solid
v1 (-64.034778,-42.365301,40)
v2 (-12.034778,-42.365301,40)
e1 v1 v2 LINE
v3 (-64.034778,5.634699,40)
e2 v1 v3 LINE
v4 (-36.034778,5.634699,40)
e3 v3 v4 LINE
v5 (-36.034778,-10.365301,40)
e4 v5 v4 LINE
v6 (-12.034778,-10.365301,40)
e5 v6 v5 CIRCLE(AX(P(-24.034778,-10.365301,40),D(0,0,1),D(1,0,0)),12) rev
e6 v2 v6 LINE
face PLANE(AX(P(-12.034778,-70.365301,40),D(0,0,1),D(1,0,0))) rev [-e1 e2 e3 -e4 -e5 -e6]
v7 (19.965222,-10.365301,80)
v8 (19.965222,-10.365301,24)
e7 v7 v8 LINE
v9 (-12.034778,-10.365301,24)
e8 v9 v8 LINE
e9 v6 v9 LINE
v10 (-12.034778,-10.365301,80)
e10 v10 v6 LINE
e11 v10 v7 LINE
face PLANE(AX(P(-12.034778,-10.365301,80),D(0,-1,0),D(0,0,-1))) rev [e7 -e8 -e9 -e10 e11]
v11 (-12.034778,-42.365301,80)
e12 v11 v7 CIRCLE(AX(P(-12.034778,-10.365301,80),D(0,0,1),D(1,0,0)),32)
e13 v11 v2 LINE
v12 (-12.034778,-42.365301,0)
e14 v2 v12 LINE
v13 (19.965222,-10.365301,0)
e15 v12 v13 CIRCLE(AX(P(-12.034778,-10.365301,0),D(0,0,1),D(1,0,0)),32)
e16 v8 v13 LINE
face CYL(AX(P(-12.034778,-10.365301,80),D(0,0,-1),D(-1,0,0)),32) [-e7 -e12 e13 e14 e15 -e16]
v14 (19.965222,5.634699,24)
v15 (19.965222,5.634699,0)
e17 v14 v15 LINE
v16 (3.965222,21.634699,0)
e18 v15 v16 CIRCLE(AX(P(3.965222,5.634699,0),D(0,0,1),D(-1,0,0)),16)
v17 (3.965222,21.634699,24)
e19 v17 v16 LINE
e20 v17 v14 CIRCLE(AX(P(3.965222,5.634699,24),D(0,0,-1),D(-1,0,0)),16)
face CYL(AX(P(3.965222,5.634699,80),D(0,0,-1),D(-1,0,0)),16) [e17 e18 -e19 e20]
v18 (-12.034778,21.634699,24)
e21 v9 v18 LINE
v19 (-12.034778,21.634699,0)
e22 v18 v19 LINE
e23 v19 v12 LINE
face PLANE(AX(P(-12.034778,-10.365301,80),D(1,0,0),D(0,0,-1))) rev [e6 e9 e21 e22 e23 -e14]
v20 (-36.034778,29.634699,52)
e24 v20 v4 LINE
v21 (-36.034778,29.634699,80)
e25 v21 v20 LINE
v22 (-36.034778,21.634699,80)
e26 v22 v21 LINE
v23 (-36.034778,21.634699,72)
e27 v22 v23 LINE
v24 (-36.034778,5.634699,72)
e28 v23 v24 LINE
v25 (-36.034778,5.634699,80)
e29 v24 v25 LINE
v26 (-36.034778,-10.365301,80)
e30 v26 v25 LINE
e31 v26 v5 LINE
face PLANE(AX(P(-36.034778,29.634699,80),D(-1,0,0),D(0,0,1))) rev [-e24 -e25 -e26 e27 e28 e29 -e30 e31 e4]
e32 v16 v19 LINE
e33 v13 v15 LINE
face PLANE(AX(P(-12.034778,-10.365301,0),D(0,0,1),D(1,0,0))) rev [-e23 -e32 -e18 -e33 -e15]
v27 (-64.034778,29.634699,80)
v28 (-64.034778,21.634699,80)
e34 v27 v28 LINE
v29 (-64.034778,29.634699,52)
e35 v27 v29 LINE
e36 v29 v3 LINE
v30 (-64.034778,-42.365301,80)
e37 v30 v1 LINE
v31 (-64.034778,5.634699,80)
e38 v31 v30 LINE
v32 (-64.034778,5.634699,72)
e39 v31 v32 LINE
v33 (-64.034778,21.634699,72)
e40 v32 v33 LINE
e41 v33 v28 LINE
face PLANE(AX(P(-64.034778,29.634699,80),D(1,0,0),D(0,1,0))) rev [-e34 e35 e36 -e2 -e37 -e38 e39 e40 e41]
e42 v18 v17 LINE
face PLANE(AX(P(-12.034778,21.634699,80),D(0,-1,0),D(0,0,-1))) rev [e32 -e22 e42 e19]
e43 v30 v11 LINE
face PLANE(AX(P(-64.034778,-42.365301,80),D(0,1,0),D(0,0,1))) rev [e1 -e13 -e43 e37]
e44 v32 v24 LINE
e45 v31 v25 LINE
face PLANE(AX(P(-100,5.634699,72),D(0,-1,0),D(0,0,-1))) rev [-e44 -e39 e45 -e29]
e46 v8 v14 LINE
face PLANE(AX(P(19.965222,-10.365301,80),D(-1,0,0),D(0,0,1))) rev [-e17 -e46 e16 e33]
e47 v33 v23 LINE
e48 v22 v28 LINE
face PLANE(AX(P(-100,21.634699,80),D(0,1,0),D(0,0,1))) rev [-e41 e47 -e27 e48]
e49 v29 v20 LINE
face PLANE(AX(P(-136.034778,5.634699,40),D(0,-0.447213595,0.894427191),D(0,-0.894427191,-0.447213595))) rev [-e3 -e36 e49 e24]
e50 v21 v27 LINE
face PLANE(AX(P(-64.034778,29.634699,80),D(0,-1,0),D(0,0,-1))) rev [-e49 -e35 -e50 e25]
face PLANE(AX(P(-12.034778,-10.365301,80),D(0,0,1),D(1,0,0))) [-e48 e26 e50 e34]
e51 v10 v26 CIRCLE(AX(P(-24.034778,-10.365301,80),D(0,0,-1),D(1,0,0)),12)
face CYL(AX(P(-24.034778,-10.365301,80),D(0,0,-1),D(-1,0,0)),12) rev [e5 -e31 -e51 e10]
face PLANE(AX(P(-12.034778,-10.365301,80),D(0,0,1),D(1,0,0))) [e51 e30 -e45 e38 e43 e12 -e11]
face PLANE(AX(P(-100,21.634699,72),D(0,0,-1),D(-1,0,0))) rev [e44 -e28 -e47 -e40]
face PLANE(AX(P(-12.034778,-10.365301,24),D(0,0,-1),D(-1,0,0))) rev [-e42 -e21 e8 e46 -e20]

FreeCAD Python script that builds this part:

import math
import FreeCAD as App
import Part
import Sketcher

V = App.Vector
Q = App.Units.Quantity

doc = App.newDocument("Part")
params = doc.addObject("Spreadsheet::Sheet", "Params")
for row, (alias, value) in enumerate([
    ("sketch1_radius", "32 mm"),
    ("sketch1_radius2", "16 mm"),
    ("sketch1_radius3", "12 mm"),
    ("sketch1_width", "28 mm"),
    ("sketch1_height", "72 mm"),
    ("pad1_length", "80 mm"),
    ("sketch2_width", "40 mm"),
    ("sketch2_height", "56 mm"),
    ("pocket1_length", "32 mm"),
    ("sketch3_width", "52 mm"),
    ("sketch3_height", "40 mm"),
    ("pocket2_length", "100 mm"),
    ("sketch4_width", "24 mm"),
    ("sketch4_height", "12 mm"),
    ("pocket3_length", "100 mm"),
    ("sketch5_width", "16 mm"),
    ("sketch5_height", "8 mm"),
    ("pocket4_length", "100 mm"),
], start=1):
    params.set(f"A{row}", alias)
    params.set(f"B{row}", "=" + value)
    params.setAlias(f"B{row}", alias)

body = doc.addObject("PartDesign::Body", "Body")

# Sketch on XY plane
sketch1 = body.newObject("Sketcher::SketchObject", "Sketch")
sketch1.AttachmentSupport = (doc.getObject("XY_Plane"), [""])
sketch1.MapMode = "FlatFace"
sketch1.addGeometry([
    Part.LineSegment(V(-36, 30, 0), V(-64, 30, 0)),  # 0
    Part.LineSegment(V(-64, 30, 0), V(-64, -42, 0)),  # 1
    Part.LineSegment(V(-64, -42, 0), V(-12, -42, 0)),  # 2
    Part.ArcOfCircle(Part.Circle(V(-12, -10, 0), V(0, 0, 1), 32), math.radians(-90), math.radians(0)),  # 3
    Part.LineSegment(V(20, -10, 0), V(20, 6, 0)),  # 4
    Part.ArcOfCircle(Part.Circle(V(4, 6, 0), V(0, 0, 1), 16), math.radians(0), math.radians(90)),  # 5
    Part.LineSegment(V(4, 22, 0), V(-12, 22, 0)),  # 6
    Part.LineSegment(V(-12, 22, 0), V(-12, -10, 0)),  # 7
    Part.ArcOfCircle(Part.Circle(V(-24, -10, 0), V(0, 0, 1), 12), math.radians(180), math.radians(360)),  # 8
    Part.LineSegment(V(-36, -10, 0), V(-36, 30, 0)),  # 9
], False)
sketch1.addConstraint([
    Sketcher.Constraint("Coincident", 0, 2, 1, 1),
    Sketcher.Constraint("Coincident", 1, 2, 2, 1),
    Sketcher.Constraint("Tangent", 2, 2, 3, 1),
    Sketcher.Constraint("Tangent", 3, 2, 4, 1),
    Sketcher.Constraint("Tangent", 4, 2, 5, 1),
    Sketcher.Constraint("Tangent", 5, 2, 6, 1),
    Sketcher.Constraint("Coincident", 6, 2, 7, 1),
    Sketcher.Constraint("Tangent", 7, 2, 8, 2),
    Sketcher.Constraint("Tangent", 8, 1, 9, 1),
    Sketcher.Constraint("Coincident", 9, 2, 0, 1),
    Sketcher.Constraint("Horizontal", 0),
    Sketcher.Constraint("Vertical", 1),
    Sketcher.Constraint("Horizontal", 2),
    Sketcher.Constraint("Vertical", 4),
    Sketcher.Constraint("Horizontal", 6),
    Sketcher.Constraint("Vertical", 7),
    Sketcher.Constraint("Vertical", 9),
    Sketcher.Constraint("Coincident", 7, 2, 3, 3),
    Sketcher.Constraint("Equal", 6, 4),
    Sketcher.Constraint("Radius", 3, Q("32 mm")),
    Sketcher.Constraint("Radius", 5, Q("16 mm")),
    Sketcher.Constraint("Radius", 8, Q("12 mm")),
    Sketcher.Constraint("DistanceX", 0, 2, 0, 1, Q("28 mm")),
    Sketcher.Constraint("DistanceY", 1, 2, 1, 1, Q("72 mm")),
    Sketcher.Constraint("DistanceY", 3, 3, -1, 1, Q("10.365301 mm")),
    Sketcher.Constraint("DistanceX", 3, 3, -1, 1, Q("12.034778 mm")),
])
sketch1.setExpression("Constraints[19]", "Params.sketch1_radius")
sketch1.setExpression("Constraints[20]", "Params.sketch1_radius2")
sketch1.setExpression("Constraints[21]", "Params.sketch1_radius3")
sketch1.setExpression("Constraints[22]", "Params.sketch1_width")
sketch1.setExpression("Constraints[23]", "Params.sketch1_height")
pad1 = body.newObject("PartDesign::Pad", "Pad")
pad1.Profile = sketch1
pad1.setExpression("Length", "Params.pad1_length")

# Sketch on YZ plane
sketch2 = body.newObject("Sketcher::SketchObject", "Sketch001")
sketch2.AttachmentSupport = (doc.getObject("YZ_Plane"), [""])
sketch2.MapMode = "FlatFace"
sketch2.AttachmentOffset = App.Placement(V(0, 0, 19.965222), App.Rotation())
sketch2.addGeometry([
    Part.LineSegment(V(30, 80, 0), V(-10, 80, 0)),
    Part.LineSegment(V(-10, 80, 0), V(-10, 24, 0)),
    Part.LineSegment(V(-10, 24, 0), V(30, 24, 0)),
    Part.LineSegment(V(30, 24, 0), V(30, 80, 0)),
], False)
sketch2.addConstraint([
    Sketcher.Constraint("Coincident", 0, 2, 1, 1),
    Sketcher.Constraint("Coincident", 1, 2, 2, 1),
    Sketcher.Constraint("Coincident", 2, 2, 3, 1),
    Sketcher.Constraint("Coincident", 3, 2, 0, 1),
    Sketcher.Constraint("Horizontal", 0),
    Sketcher.Constraint("Vertical", 1),
    Sketcher.Constraint("Horizontal", 2),
    Sketcher.Constraint("Vertical", 3),
    Sketcher.Constraint("DistanceX", 0, 2, 0, 1, Q("40 mm")),
    Sketcher.Constraint("DistanceY", 1, 2, 1, 1, Q("56 mm")),
    Sketcher.Constraint("DistanceY", -1, 1, 0, 2, Q("80 mm")),
    Sketcher.Constraint("DistanceX", 0, 2, -1, 1, Q("10.365301 mm")),
])
sketch2.setExpression("Constraints[8]", "Params.sketch2_width")
sketch2.setExpression("Constraints[9]", "Params.sketch2_height")
pocket1 = body.newObject("PartDesign::Pocket", "Pocket")
pocket1.Profile = sketch2
pocket1.setExpression("Length", "Params.pocket1_length")

# Sketch on XZ plane
sketch3 = body.newObject("Sketcher::SketchObject", "Sketch002")
sketch3.AttachmentSupport = (doc.getObject("XZ_Plane"), [""])
sketch3.MapMode = "FlatFace"
sketch3.AttachmentOffset = App.Placement(V(0, 0, -29.634699), App.Rotation())
sketch3.addGeometry([
    Part.LineSegment(V(-64, 0, 0), V(-64, 40, 0)),
    Part.LineSegment(V(-64, 40, 0), V(-12, 40, 0)),
    Part.LineSegment(V(-12, 40, 0), V(-12, 0, 0)),
    Part.LineSegment(V(-12, 0, 0), V(-64, 0, 0)),
], False)
sketch3.addConstraint([
    Sketcher.Constraint("Coincident", 0, 2, 1, 1),
    Sketcher.Constraint("Coincident", 1, 2, 2, 1),
    Sketcher.Constraint("Coincident", 2, 2, 3, 1),
    Sketcher.Constraint("Coincident", 3, 2, 0, 1),
    Sketcher.Constraint("Vertical", 0),
    Sketcher.Constraint("Horizontal", 1),
    Sketcher.Constraint("Vertical", 2),
    Sketcher.Constraint("Horizontal", 3),
    Sketcher.Constraint("PointOnObject", 2, 2, -1),
    Sketcher.Constraint("DistanceX", 1, 1, 1, 2, Q("52 mm")),
    Sketcher.Constraint("DistanceY", 0, 1, 0, 2, Q("40 mm")),
    Sketcher.Constraint("DistanceX", 0, 2, -1, 1, Q("64.034778 mm")),
])
sketch3.setExpression("Constraints[9]", "Params.sketch3_width")
sketch3.setExpression("Constraints[10]", "Params.sketch3_height")
pocket2 = body.newObject("PartDesign::Pocket", "Pocket001")
pocket2.Profile = sketch3
pocket2.setExpression("Length", "Params.pocket2_length")
pocket2.Reversed = True

# Sketch on YZ plane
sketch4 = body.newObject("Sketcher::SketchObject", "Sketch003")
sketch4.AttachmentSupport = (doc.getObject("YZ_Plane"), [""])
sketch4.MapMode = "FlatFace"
sketch4.AttachmentOffset = App.Placement(V(0, 0, -36.034778), App.Rotation())
sketch4.addGeometry([
    Part.LineSegment(V(6, 40, 0), V(30, 40, 0)),
    Part.LineSegment(V(30, 40, 0), V(30, 52, 0)),
    Part.LineSegment(V(30, 52, 0), V(6, 40, 0)),
], False)
sketch4.addConstraint([
    Sketcher.Constraint("Coincident", 0, 2, 1, 1),
    Sketcher.Constraint("Coincident", 1, 2, 2, 1),
    Sketcher.Constraint("Coincident", 2, 2, 0, 1),
    Sketcher.Constraint("Horizontal", 0),
    Sketcher.Constraint("Vertical", 1),
    Sketcher.Constraint("DistanceX", 0, 1, 0, 2, Q("24 mm")),
    Sketcher.Constraint("DistanceY", 1, 1, 1, 2, Q("12 mm")),
    Sketcher.Constraint("DistanceY", -1, 1, 0, 2, Q("40 mm")),
    Sketcher.Constraint("DistanceX", -1, 1, 0, 2, Q("29.634699 mm")),
])
sketch4.setExpression("Constraints[5]", "Params.sketch4_width")
sketch4.setExpression("Constraints[6]", "Params.sketch4_height")
pocket3 = body.newObject("PartDesign::Pocket", "Pocket002")
pocket3.Profile = sketch4
pocket3.setExpression("Length", "Params.pocket3_length")

# Sketch on YZ plane
sketch5 = body.newObject("Sketcher::SketchObject", "Sketch004")
sketch5.AttachmentSupport = (doc.getObject("YZ_Plane"), [""])
sketch5.MapMode = "FlatFace"
sketch5.addGeometry([
    Part.LineSegment(V(22, 80, 0), V(6, 80, 0)),
    Part.LineSegment(V(6, 80, 0), V(6, 72, 0)),
    Part.LineSegment(V(6, 72, 0), V(22, 72, 0)),
    Part.LineSegment(V(22, 72, 0), V(22, 80, 0)),
], False)
sketch5.addConstraint([
    Sketcher.Constraint("Coincident", 0, 2, 1, 1),
    Sketcher.Constraint("Coincident", 1, 2, 2, 1),
    Sketcher.Constraint("Coincident", 2, 2, 3, 1),
    Sketcher.Constraint("Coincident", 3, 2, 0, 1),
    Sketcher.Constraint("Horizontal", 0),
    Sketcher.Constraint("Vertical", 1),
    Sketcher.Constraint("Horizontal", 2),
    Sketcher.Constraint("Vertical", 3),
    Sketcher.Constraint("DistanceX", 0, 2, 0, 1, Q("16 mm")),
    Sketcher.Constraint("DistanceY", 1, 2, 1, 1, Q("8 mm")),
    Sketcher.Constraint("DistanceY", -1, 1, 0, 2, Q("80 mm")),
    Sketcher.Constraint("DistanceX", -1, 1, 0, 2, Q("5.634699 mm")),
])
sketch5.setExpression("Constraints[8]", "Params.sketch5_width")
sketch5.setExpression("Constraints[9]", "Params.sketch5_height")
pocket4 = body.newObject("PartDesign::Pocket", "Pocket003")
pocket4.Profile = sketch5
pocket4.setExpression("Length", "Params.pocket4_length")

doc.recompute()
